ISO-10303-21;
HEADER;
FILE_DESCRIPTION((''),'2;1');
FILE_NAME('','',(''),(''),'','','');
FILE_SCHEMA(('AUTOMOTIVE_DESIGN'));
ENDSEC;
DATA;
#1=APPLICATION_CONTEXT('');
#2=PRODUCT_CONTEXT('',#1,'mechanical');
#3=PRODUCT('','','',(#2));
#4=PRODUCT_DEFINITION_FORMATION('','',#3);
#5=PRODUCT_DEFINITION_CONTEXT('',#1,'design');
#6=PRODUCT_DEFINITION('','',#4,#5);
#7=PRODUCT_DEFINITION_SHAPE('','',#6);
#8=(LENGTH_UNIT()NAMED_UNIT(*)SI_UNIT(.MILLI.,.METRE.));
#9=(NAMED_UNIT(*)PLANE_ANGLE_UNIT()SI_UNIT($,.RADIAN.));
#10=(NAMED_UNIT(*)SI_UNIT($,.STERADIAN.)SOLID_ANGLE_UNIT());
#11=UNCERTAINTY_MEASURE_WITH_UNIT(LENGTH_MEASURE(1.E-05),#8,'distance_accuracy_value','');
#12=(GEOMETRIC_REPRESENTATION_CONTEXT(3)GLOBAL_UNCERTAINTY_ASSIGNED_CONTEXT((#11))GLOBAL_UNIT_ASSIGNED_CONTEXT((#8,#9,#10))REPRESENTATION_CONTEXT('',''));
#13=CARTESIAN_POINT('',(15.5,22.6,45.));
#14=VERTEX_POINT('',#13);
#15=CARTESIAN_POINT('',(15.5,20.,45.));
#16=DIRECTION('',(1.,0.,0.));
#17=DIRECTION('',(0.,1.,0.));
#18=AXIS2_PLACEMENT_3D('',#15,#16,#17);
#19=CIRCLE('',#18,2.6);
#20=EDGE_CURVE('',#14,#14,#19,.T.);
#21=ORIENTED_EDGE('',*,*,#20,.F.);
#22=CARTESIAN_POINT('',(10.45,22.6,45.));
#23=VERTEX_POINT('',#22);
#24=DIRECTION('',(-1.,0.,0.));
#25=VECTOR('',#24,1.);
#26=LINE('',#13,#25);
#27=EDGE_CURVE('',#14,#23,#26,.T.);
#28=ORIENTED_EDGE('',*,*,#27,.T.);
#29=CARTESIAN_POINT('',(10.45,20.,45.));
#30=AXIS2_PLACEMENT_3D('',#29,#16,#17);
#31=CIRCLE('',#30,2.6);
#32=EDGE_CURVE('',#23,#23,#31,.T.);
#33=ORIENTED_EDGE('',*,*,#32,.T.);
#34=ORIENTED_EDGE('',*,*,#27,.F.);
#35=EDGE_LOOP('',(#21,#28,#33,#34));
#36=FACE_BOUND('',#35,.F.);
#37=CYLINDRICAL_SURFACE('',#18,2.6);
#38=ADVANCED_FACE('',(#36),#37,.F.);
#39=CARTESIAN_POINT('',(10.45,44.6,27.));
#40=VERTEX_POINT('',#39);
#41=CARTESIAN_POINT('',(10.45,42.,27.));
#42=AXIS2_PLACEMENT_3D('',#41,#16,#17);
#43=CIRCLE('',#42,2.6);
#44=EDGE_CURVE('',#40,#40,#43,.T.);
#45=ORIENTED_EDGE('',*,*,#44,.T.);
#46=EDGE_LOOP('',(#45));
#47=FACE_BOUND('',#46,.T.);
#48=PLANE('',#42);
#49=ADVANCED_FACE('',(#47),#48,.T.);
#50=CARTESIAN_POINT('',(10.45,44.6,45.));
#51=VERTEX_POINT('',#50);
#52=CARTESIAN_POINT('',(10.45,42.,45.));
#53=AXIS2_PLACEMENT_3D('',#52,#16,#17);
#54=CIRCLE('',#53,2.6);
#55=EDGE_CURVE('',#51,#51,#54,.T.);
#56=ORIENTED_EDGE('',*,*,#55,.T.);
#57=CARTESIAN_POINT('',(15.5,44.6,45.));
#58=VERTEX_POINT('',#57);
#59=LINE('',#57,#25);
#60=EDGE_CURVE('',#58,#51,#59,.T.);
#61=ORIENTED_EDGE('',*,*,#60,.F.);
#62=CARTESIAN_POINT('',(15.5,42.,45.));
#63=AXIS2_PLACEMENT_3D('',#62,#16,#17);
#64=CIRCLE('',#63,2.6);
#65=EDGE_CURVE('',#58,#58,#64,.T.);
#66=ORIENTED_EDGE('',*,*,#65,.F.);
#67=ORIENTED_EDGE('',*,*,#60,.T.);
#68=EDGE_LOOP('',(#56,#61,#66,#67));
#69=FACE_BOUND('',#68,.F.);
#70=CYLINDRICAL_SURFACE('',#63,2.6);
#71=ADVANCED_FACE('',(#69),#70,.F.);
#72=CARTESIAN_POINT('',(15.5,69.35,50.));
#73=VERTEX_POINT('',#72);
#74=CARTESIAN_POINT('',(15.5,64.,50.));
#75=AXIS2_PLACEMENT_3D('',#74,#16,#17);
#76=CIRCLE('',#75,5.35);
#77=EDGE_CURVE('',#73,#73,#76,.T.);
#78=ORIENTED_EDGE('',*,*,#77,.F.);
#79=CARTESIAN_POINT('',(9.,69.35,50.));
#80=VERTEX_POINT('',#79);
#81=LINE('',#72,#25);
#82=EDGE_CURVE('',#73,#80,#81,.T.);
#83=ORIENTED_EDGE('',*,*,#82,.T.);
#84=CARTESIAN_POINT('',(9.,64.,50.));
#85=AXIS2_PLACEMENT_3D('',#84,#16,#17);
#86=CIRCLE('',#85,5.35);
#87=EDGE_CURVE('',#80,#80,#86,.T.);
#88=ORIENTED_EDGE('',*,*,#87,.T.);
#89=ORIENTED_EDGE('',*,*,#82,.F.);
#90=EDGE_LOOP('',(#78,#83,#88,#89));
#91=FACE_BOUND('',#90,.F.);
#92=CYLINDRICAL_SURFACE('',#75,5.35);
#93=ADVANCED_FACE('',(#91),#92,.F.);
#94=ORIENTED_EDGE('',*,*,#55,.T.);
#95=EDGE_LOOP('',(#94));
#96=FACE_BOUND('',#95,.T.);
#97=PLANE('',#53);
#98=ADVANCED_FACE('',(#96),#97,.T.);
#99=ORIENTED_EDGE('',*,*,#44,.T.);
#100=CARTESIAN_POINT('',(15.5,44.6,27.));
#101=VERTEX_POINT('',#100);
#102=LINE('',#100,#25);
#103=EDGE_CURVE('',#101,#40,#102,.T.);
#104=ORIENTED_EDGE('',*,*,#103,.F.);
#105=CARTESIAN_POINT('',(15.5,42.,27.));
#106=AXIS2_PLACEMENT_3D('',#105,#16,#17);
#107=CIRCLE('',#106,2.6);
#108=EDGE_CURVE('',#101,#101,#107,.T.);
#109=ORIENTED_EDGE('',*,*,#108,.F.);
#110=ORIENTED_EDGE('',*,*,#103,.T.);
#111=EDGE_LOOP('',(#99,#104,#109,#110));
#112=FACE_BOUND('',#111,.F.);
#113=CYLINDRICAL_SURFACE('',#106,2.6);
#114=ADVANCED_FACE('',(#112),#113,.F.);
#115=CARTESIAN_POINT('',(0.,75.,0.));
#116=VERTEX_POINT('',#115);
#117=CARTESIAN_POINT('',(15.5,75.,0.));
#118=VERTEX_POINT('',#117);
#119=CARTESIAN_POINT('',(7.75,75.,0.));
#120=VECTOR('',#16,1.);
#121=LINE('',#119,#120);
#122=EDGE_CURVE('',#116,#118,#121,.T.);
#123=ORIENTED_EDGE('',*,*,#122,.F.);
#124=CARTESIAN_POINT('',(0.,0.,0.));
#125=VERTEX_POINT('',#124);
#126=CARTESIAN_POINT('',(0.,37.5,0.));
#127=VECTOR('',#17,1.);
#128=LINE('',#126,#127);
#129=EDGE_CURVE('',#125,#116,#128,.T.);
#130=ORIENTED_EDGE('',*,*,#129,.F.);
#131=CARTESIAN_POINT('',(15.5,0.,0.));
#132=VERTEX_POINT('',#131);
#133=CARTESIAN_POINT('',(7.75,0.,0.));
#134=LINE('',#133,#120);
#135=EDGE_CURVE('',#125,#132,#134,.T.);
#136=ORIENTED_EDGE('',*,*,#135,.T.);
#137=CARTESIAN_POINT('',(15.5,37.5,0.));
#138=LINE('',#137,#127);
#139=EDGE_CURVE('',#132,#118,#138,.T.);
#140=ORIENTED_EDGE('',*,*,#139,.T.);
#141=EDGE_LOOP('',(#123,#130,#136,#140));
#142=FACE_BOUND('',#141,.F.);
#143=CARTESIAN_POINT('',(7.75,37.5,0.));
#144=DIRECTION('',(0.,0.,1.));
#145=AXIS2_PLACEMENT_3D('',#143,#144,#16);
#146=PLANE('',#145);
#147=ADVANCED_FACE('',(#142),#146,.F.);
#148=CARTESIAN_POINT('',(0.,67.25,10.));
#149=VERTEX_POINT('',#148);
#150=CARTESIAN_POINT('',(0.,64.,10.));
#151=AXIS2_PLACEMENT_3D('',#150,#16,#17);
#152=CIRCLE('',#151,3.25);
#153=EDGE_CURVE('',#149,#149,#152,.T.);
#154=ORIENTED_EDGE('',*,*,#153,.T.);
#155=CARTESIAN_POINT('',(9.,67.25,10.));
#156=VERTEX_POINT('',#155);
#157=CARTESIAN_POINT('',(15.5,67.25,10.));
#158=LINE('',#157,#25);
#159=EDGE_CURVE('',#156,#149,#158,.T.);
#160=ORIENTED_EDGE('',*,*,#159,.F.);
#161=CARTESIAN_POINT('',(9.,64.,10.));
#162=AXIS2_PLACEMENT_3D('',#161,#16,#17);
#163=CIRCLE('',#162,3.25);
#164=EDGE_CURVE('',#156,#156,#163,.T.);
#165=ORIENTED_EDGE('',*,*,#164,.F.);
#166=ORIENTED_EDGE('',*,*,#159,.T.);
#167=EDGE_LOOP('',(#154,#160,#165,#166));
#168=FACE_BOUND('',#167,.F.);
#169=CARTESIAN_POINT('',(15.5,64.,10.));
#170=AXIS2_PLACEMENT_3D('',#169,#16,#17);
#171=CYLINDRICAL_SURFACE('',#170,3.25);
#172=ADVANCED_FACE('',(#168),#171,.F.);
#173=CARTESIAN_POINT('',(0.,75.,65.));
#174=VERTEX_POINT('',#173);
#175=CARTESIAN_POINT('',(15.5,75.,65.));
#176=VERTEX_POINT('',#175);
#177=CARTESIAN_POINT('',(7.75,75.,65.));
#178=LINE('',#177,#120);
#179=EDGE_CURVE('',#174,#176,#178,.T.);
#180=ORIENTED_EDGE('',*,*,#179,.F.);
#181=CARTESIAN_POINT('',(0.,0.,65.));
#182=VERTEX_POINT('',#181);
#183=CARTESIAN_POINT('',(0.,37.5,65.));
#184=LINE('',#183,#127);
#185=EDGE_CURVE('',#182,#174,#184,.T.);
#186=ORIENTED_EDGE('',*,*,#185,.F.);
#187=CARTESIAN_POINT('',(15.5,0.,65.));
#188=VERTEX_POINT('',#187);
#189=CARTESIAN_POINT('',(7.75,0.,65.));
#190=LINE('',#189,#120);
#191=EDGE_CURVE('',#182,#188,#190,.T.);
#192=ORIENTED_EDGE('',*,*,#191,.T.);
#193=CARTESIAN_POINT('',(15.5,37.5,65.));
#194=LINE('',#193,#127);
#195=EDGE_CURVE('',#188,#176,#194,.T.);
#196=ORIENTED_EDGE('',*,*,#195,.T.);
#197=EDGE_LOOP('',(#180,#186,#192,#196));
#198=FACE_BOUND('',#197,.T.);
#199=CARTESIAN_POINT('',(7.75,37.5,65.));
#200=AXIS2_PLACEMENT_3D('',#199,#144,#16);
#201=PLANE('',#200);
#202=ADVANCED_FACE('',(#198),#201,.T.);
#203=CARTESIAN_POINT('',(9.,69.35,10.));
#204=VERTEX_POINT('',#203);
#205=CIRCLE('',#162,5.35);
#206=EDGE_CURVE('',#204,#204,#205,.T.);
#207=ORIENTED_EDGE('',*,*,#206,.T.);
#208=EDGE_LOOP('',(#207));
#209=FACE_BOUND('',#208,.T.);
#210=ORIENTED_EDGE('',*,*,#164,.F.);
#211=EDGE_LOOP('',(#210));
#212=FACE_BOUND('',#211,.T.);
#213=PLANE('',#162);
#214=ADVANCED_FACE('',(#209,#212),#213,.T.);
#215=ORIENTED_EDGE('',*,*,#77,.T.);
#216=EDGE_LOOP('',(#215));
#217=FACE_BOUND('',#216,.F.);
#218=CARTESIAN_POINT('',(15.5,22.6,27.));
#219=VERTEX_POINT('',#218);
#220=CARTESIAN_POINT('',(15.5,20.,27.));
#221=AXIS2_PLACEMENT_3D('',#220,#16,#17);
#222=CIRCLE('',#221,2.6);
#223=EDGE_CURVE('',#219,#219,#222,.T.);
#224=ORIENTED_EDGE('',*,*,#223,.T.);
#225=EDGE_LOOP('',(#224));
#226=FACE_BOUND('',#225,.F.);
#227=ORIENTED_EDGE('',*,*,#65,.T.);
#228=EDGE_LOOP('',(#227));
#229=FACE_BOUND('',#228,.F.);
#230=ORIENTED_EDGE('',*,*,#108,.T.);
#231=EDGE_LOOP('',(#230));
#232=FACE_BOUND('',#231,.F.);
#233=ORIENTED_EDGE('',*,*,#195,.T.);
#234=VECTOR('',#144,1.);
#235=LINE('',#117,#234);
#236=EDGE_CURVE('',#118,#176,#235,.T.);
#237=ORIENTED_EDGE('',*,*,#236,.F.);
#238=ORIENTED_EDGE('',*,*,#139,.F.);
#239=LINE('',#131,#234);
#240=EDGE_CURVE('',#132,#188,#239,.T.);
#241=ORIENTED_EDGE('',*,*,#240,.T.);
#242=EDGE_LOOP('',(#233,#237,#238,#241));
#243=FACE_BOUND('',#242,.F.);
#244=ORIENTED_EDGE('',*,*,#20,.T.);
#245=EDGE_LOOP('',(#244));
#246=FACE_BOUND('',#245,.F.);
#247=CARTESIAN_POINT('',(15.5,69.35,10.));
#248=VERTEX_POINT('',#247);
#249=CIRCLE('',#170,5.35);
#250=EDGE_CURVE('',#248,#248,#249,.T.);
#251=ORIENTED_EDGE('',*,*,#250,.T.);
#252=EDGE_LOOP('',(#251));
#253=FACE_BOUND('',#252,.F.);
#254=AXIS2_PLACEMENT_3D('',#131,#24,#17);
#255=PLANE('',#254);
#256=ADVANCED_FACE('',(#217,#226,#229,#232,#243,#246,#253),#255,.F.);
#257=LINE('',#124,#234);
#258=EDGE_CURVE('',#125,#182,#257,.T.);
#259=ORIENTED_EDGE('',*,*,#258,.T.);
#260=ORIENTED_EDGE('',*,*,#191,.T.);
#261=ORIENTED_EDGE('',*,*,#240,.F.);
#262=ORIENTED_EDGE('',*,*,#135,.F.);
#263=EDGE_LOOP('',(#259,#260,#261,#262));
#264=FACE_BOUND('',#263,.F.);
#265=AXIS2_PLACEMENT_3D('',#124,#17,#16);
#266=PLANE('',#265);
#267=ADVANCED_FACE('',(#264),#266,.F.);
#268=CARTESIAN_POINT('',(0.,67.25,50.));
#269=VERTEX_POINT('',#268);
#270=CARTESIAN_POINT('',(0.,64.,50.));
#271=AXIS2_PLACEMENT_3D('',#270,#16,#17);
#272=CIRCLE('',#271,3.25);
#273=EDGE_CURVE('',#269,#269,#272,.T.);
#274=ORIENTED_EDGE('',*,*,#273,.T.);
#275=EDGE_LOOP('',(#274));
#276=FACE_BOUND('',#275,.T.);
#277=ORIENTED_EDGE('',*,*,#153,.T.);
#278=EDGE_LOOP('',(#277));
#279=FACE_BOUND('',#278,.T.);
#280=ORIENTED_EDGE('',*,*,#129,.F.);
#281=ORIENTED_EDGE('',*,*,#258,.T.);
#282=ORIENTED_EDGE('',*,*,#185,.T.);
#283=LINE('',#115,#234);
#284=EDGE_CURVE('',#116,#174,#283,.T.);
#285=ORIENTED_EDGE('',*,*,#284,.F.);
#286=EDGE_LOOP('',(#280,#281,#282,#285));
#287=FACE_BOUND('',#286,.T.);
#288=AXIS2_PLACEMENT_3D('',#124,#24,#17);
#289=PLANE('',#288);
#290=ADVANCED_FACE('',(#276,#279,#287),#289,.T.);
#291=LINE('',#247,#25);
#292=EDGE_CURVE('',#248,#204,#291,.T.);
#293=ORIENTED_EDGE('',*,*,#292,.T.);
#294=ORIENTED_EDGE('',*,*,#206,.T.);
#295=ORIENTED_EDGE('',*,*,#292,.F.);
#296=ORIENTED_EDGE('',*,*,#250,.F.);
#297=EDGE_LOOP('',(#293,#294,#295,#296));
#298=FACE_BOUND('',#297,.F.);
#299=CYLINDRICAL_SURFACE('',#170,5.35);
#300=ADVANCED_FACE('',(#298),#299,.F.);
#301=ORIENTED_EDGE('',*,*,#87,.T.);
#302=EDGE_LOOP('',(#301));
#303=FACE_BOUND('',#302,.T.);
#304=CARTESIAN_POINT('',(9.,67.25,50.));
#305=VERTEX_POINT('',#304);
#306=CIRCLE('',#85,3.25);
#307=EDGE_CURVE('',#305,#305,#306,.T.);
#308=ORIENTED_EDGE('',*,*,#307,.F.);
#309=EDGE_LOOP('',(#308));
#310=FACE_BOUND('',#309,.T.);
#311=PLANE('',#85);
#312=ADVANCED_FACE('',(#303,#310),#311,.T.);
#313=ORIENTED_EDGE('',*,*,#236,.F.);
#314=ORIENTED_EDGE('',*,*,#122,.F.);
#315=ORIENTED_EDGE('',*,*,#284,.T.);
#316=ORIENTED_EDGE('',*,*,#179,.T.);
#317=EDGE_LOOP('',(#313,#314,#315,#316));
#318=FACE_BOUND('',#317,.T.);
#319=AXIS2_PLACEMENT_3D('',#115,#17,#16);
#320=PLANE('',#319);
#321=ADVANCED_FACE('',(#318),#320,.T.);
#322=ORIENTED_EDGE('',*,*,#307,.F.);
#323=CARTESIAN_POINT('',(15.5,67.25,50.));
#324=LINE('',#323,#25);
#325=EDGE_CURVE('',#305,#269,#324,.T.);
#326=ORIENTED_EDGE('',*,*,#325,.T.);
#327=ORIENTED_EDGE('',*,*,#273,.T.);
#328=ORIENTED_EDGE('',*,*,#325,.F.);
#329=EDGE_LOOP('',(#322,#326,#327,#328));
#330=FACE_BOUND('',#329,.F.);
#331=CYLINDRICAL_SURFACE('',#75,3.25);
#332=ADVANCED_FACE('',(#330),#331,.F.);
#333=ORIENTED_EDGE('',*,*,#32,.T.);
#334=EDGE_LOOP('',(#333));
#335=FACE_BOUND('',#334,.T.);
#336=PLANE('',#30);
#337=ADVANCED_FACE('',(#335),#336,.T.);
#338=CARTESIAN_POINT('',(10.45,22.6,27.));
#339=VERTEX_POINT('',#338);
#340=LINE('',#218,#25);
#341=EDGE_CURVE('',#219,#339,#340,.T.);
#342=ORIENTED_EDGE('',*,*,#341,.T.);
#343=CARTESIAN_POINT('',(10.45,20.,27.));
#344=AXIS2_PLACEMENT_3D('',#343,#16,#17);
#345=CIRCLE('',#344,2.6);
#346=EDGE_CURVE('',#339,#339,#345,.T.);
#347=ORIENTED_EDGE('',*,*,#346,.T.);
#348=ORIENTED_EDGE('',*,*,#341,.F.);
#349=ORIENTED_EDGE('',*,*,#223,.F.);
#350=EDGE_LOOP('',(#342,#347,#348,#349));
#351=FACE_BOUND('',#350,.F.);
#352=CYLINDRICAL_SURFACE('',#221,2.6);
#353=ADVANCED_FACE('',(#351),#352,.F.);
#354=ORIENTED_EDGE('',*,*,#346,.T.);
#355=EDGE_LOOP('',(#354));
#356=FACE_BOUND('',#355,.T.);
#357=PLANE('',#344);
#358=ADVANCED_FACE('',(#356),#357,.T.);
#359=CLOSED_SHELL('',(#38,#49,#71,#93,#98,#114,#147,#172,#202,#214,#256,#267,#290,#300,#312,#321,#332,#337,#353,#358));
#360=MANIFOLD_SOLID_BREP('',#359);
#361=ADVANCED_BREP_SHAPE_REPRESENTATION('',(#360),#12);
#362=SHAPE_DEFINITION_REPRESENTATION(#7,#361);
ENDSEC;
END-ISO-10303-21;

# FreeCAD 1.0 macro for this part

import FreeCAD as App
import Part
import Sketcher
Q = App.Units.Quantity

doc = App.newDocument("Part")
body = doc.addObject("PartDesign::Body", "Body")

# Sketch on XY plane
sketch1 = body.newObject("Sketcher::SketchObject", "Sketch")
sketch1.AttachmentSupport = (doc.getObject("XY_Plane"), [""])
sketch1.MapMode = "FlatFace"
sketch1.addGeometry(Part.LineSegment(App.Vector(0, 75, 0), App.Vector(0, 0, 0)), False)
sketch1.addGeometry(Part.LineSegment(App.Vector(0, 0, 0), App.Vector(16, 0, 0)), False)
sketch1.addGeometry(Part.LineSegment(App.Vector(16, 0, 0), App.Vector(16, 75, 0)), False)
sketch1.addGeometry(Part.LineSegment(App.Vector(16, 75, 0), App.Vector(0, 75, 0)), False)
sketch1.addConstraint(Sketcher.Constraint("Coincident", 0, 2, 1, 1))
sketch1.addConstraint(Sketcher.Constraint("Coincident", 1, 2, 2, 1))
sketch1.addConstraint(Sketcher.Constraint("Coincident", 2, 2, 3, 1))
sketch1.addConstraint(Sketcher.Constraint("Coincident", 3, 2, 0, 1))
sketch1.addConstraint(Sketcher.Constraint("Vertical", 0))
sketch1.addConstraint(Sketcher.Constraint("Horizontal", 1))
sketch1.addConstraint(Sketcher.Constraint("Vertical", 2))
sketch1.addConstraint(Sketcher.Constraint("Horizontal", 3))
sketch1.addConstraint(Sketcher.Constraint("Coincident", 0, 2, -1, 1))
sketch1.addConstraint(Sketcher.Constraint("DistanceY", 0, 2, 0, 1, Q("75 mm")))
sketch1.addConstraint(Sketcher.Constraint("DistanceX", 1, 1, 1, 2, Q("15.5 mm")))
pad1 = body.newObject("PartDesign::Pad", "Pad")
pad1.Profile = sketch1
pad1.Length = 65

# Sketch on YZ plane
sketch2 = body.newObject("Sketcher::SketchObject", "Sketch001")
sketch2.AttachmentSupport = (doc.getObject("YZ_Plane"), [""])
sketch2.MapMode = "FlatFace"
sketch2.AttachmentOffset = App.Placement(App.Vector(0, 0, 15.5), App.Rotation())
sketch2.addGeometry(Part.Circle(App.Vector(64, 50, 0), App.Vector(0, 0, 1), 3.2), False)
sketch2.addGeometry(Part.Circle(App.Vector(64, 10, 0), App.Vector(0, 0, 1), 3.2), False)
sketch2.addConstraint(Sketcher.Constraint("Equal", 0, 1))
sketch2.addConstraint(Sketcher.Constraint("Vertical", 0, 3, 1, 3))
sketch2.addConstraint(Sketcher.Constraint("Diameter", 0, Q("6.5 mm")))
sketch2.addConstraint(Sketcher.Constraint("DistanceX", -1, 1, 0, 3, Q("64 mm")))
sketch2.addConstraint(Sketcher.Constraint("DistanceY", -1, 1, 0, 3, Q("50 mm")))
sketch2.addConstraint(Sketcher.Constraint("DistanceY", -1, 1, 1, 3, Q("10 mm")))
pocket1 = body.newObject("PartDesign::Pocket", "Pocket")
pocket1.Profile = sketch2
pocket1.Length = 17

# Sketch on YZ plane
sketch3 = body.newObject("Sketcher::SketchObject", "Sketch002")
sketch3.AttachmentSupport = (doc.getObject("YZ_Plane"), [""])
sketch3.MapMode = "FlatFace"
sketch3.AttachmentOffset = App.Placement(App.Vector(0, 0, 15.5), App.Rotation())
sketch3.addGeometry(Part.Circle(App.Vector(20, 45, 0), App.Vector(0, 0, 1), 2.6), False)
sketch3.addGeometry(Part.Circle(App.Vector(42, 45, 0), App.Vector(0, 0, 1), 2.6), False)
sketch3.addGeometry(Part.Circle(App.Vector(20, 27, 0), App.Vector(0, 0, 1), 2.6), False)
sketch3.addGeometry(Part.Circle(App.Vector(42, 27, 0), App.Vector(0, 0, 1), 2.6), False)
sketch3.addConstraint(Sketcher.Constraint("Equal", 0, 1))
sketch3.addConstraint(Sketcher.Constraint("Equal", 1, 2))
sketch3.addConstraint(Sketcher.Constraint("Equal", 2, 3))
sketch3.addConstraint(Sketcher.Constraint("Horizontal", 0, 3, 1, 3))
sketch3.addConstraint(Sketcher.Constraint("Horizontal", 2, 3, 3, 3))
sketch3.addConstraint(Sketcher.Constraint("Vertical", 0, 3, 2, 3))
sketch3.addConstraint(Sketcher.Constraint("Vertical", 1, 3, 3, 3))
sketch3.addConstraint(Sketcher.Constraint("Diameter", 0, Q("5.2 mm")))
sketch3.addConstraint(Sketcher.Constraint("DistanceX", -1, 1, 0, 3, Q("20 mm")))
sketch3.addConstraint(Sketcher.Constraint("DistanceY", -1, 1, 0, 3, Q("45 mm")))
sketch3.addConstraint(Sketcher.Constraint("DistanceX", -1, 1, 1, 3, Q("42 mm")))
sketch3.addConstraint(Sketcher.Constraint("DistanceY", -1, 1, 2, 3, Q("27 mm")))
pocket2 = body.newObject("PartDesign::Pocket", "Pocket001")
pocket2.Profile = sketch3
pocket2.Length = 5.05

# Sketch on YZ plane
sketch4 = body.newObject("Sketcher::SketchObject", "Sketch003")
sketch4.AttachmentSupport = (doc.getObject("YZ_Plane"), [""])
sketch4.MapMode = "FlatFace"
sketch4.AttachmentOffset = App.Placement(App.Vector(0, 0, 15.5), App.Rotation())
sketch4.addGeometry(Part.Circle(App.Vector(64, 50, 0), App.Vector(0, 0, 1), 5), False)
sketch4.addGeometry(Part.Circle(App.Vector(64, 10, 0), App.Vector(0, 0, 1), 5), False)
sketch4.addConstraint(Sketcher.Constraint("Equal", 0, 1))
sketch4.addConstraint(Sketcher.Constraint("Vertical", 0, 3, 1, 3))
sketch4.addConstraint(Sketcher.Constraint("Diameter", 0, Q("10.7 mm")))
sketch4.addConstraint(Sketcher.Constraint("DistanceX", -1, 1, 0, 3, Q("64 mm")))
sketch4.addConstraint(Sketcher.Constraint("DistanceY", -1, 1, 0, 3, Q("50 mm")))
sketch4.addConstraint(Sketcher.Constraint("DistanceY", -1, 1, 1, 3, Q("10 mm")))
pocket3 = body.newObject("PartDesign::Pocket", "Pocket002")
pocket3.Profile = sketch4
pocket3.Length = 6.5

doc.recompute()
